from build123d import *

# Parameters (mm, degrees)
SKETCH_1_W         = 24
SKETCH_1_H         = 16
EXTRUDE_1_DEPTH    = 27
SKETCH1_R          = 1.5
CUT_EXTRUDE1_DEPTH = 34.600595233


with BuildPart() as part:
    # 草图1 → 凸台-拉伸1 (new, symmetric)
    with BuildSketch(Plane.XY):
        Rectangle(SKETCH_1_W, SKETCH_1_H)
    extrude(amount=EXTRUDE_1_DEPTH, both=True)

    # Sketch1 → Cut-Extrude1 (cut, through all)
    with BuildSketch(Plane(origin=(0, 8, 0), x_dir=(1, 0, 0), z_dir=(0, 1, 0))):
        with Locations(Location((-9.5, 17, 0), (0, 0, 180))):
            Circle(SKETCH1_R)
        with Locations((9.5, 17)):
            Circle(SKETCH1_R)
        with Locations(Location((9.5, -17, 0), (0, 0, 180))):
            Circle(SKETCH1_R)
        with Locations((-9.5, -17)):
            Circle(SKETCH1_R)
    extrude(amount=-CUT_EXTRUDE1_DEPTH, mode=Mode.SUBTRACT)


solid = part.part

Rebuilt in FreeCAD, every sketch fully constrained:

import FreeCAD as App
import Part
import Sketcher

V = App.Vector
Q = App.Units.Quantity

doc = App.newDocument("Part")
body = doc.addObject("PartDesign::Body", "Body")

# Sketch on XY plane
sketch1 = body.newObject("Sketcher::SketchObject", "Sketch")
sketch1.AttachmentSupport = (doc.getObject("XY_Plane"), [""])
sketch1.MapMode = "FlatFace"
sketch1.addGeometry([
    Part.LineSegment(V(-12, 8, 0), V(-12, -8, 0)),
    Part.LineSegment(V(-12, -8, 0), V(12, -8, 0)),
    Part.LineSegment(V(12, -8, 0), V(12, 8, 0)),
    Part.LineSegment(V(12, 8, 0), V(-12, 8, 0)),
], False)
sketch1.addConstraint([
    Sketcher.Constraint("Coincident", 0, 2, 1, 1),
    Sketcher.Constraint("Coincident", 1, 2, 2, 1),
    Sketcher.Constraint("Coincident", 2, 2, 3, 1),
    Sketcher.Constraint("Coincident", 3, 2, 0, 1),
    Sketcher.Constraint("Vertical", 0),
    Sketcher.Constraint("Horizontal", 1),
    Sketcher.Constraint("Vertical", 2),
    Sketcher.Constraint("Horizontal", 3),
    Sketcher.Constraint("Symmetric", 0, 2, 2, 2, -1, 1),
    Sketcher.Constraint("DistanceX", 1, 1, 1, 2, Q("24 mm")),
    Sketcher.Constraint("DistanceY", 0, 2, 0, 1, Q("16 mm")),
])
pad1 = body.newObject("PartDesign::Pad", "Pad")
pad1.Profile = sketch1
pad1.Length = 54
pad1.Midplane = True

# Sketch on XZ plane
sketch2 = body.newObject("Sketcher::SketchObject", "Sketch001")
sketch2.AttachmentSupport = (doc.getObject("XZ_Plane"), [""])
sketch2.MapMode = "FlatFace"
sketch2.AttachmentOffset = App.Placement(V(0, 0, -8), App.Rotation())
sketch2.addGeometry([
    Part.Circle(V(-9.5, -17, 0), V(0, 0, 1), 1.5),
    Part.Circle(V(9.5, -17, 0), V(0, 0, 1), 1.5),
    Part.Circle(V(9.5, 17, 0), V(0, 0, 1), 1.5),
    Part.Circle(V(-9.5, 17, 0), V(0, 0, 1), 1.5),
], False)
sketch2.addConstraint([
    Sketcher.Constraint("Equal", 0, 1),
    Sketcher.Constraint("Equal", 1, 2),
    Sketcher.Constraint("Equal", 2, 3),
    Sketcher.Constraint("Symmetric", 0, 3, 2, 3, -1, 1),
    Sketcher.Constraint("Symmetric", 1, 3, 3, 3, -1, 1),
    Sketcher.Constraint("Symmetric", 0, 3, 1, 3, -2),
    Sketcher.Constraint("Diameter", 0, Q("3 mm")),
    Sketcher.Constraint("DistanceY", 0, 3, -1, 1, Q("17 mm")),
    Sketcher.Constraint("DistanceX", 0, 3, 1, 3, Q("19 mm")),
])
pocket1 = body.newObject("PartDesign::Pocket", "Pocket")
pocket1.Profile = sketch2
pocket1.Type = "ThroughAll"
pocket1.Reversed = True

doc.recompute()
